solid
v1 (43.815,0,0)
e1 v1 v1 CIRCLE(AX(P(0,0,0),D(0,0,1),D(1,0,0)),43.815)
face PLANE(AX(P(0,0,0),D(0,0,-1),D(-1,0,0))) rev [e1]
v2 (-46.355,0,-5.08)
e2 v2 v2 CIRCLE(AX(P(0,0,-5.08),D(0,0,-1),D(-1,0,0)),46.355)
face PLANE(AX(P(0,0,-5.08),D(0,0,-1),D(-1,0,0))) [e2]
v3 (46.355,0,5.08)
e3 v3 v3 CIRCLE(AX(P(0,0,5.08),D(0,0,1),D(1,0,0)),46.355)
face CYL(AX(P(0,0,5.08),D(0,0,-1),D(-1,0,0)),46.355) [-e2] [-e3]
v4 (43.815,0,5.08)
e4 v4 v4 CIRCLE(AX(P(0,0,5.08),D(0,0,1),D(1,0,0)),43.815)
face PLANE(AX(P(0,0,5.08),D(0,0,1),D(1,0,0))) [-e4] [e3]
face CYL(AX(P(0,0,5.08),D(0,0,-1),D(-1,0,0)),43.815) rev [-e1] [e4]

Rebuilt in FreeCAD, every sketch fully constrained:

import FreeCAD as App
import Part
import Sketcher
Q = App.Units.Quantity

doc = App.newDocument("Part")
body = doc.addObject("PartDesign::Body", "Body")

sketch1 = body.newObject("Sketcher::SketchObject", "Sketch")
sketch1.AttachmentSupport = (doc.getObject("XY_Plane"), [""])
sketch1.MapMode = "FlatFace"
sketch1.addGeometry(Part.Circle(App.Vector(0, 0, 0), App.Vector(0, 0, 1), 46), False)
sketch1.addGeometry(Part.Circle(App.Vector(0, 0, 0), App.Vector(0, 0, 1), 44), False)
sketch1.addConstraint(Sketcher.Constraint("Coincident", 0, 3, -1, 1))
sketch1.addConstraint(Sketcher.Constraint("Coincident", 1, 3, -1, 1))
sketch1.addConstraint(Sketcher.Constraint("Diameter", 0, Q("3.65 in")))
sketch1.addConstraint(Sketcher.Constraint("Diameter", 1, Q("3.45 in")))
pad1 = body.newObject("PartDesign::Pad", "Pad")
pad1.Profile = sketch1
pad1.Length = Q("0.2 in")

sketch2 = body.newObject("Sketcher::SketchObject", "Sketch001")
sketch2.AttachmentSupport = (doc.getObject("XY_Plane"), [""])
sketch2.MapMode = "FlatFace"
sketch2.AttachmentOffset = App.Placement(App.Vector(0, 0, -0.2 * 25.4), App.Rotation())
sketch2.addGeometry(Part.Circle(App.Vector(0, 0, 0), App.Vector(0, 0, 1), 46), False)
sketch2.addConstraint(Sketcher.Constraint("Coincident", 0, 3, -1, 1))
sketch2.addConstraint(Sketcher.Constraint("Diameter", 0, Q("3.65 in")))
pad2 = body.newObject("PartDesign::Pad", "Pad001")
pad2.Profile = sketch2
pad2.Length = Q("0.2 in")

doc.recompute()
